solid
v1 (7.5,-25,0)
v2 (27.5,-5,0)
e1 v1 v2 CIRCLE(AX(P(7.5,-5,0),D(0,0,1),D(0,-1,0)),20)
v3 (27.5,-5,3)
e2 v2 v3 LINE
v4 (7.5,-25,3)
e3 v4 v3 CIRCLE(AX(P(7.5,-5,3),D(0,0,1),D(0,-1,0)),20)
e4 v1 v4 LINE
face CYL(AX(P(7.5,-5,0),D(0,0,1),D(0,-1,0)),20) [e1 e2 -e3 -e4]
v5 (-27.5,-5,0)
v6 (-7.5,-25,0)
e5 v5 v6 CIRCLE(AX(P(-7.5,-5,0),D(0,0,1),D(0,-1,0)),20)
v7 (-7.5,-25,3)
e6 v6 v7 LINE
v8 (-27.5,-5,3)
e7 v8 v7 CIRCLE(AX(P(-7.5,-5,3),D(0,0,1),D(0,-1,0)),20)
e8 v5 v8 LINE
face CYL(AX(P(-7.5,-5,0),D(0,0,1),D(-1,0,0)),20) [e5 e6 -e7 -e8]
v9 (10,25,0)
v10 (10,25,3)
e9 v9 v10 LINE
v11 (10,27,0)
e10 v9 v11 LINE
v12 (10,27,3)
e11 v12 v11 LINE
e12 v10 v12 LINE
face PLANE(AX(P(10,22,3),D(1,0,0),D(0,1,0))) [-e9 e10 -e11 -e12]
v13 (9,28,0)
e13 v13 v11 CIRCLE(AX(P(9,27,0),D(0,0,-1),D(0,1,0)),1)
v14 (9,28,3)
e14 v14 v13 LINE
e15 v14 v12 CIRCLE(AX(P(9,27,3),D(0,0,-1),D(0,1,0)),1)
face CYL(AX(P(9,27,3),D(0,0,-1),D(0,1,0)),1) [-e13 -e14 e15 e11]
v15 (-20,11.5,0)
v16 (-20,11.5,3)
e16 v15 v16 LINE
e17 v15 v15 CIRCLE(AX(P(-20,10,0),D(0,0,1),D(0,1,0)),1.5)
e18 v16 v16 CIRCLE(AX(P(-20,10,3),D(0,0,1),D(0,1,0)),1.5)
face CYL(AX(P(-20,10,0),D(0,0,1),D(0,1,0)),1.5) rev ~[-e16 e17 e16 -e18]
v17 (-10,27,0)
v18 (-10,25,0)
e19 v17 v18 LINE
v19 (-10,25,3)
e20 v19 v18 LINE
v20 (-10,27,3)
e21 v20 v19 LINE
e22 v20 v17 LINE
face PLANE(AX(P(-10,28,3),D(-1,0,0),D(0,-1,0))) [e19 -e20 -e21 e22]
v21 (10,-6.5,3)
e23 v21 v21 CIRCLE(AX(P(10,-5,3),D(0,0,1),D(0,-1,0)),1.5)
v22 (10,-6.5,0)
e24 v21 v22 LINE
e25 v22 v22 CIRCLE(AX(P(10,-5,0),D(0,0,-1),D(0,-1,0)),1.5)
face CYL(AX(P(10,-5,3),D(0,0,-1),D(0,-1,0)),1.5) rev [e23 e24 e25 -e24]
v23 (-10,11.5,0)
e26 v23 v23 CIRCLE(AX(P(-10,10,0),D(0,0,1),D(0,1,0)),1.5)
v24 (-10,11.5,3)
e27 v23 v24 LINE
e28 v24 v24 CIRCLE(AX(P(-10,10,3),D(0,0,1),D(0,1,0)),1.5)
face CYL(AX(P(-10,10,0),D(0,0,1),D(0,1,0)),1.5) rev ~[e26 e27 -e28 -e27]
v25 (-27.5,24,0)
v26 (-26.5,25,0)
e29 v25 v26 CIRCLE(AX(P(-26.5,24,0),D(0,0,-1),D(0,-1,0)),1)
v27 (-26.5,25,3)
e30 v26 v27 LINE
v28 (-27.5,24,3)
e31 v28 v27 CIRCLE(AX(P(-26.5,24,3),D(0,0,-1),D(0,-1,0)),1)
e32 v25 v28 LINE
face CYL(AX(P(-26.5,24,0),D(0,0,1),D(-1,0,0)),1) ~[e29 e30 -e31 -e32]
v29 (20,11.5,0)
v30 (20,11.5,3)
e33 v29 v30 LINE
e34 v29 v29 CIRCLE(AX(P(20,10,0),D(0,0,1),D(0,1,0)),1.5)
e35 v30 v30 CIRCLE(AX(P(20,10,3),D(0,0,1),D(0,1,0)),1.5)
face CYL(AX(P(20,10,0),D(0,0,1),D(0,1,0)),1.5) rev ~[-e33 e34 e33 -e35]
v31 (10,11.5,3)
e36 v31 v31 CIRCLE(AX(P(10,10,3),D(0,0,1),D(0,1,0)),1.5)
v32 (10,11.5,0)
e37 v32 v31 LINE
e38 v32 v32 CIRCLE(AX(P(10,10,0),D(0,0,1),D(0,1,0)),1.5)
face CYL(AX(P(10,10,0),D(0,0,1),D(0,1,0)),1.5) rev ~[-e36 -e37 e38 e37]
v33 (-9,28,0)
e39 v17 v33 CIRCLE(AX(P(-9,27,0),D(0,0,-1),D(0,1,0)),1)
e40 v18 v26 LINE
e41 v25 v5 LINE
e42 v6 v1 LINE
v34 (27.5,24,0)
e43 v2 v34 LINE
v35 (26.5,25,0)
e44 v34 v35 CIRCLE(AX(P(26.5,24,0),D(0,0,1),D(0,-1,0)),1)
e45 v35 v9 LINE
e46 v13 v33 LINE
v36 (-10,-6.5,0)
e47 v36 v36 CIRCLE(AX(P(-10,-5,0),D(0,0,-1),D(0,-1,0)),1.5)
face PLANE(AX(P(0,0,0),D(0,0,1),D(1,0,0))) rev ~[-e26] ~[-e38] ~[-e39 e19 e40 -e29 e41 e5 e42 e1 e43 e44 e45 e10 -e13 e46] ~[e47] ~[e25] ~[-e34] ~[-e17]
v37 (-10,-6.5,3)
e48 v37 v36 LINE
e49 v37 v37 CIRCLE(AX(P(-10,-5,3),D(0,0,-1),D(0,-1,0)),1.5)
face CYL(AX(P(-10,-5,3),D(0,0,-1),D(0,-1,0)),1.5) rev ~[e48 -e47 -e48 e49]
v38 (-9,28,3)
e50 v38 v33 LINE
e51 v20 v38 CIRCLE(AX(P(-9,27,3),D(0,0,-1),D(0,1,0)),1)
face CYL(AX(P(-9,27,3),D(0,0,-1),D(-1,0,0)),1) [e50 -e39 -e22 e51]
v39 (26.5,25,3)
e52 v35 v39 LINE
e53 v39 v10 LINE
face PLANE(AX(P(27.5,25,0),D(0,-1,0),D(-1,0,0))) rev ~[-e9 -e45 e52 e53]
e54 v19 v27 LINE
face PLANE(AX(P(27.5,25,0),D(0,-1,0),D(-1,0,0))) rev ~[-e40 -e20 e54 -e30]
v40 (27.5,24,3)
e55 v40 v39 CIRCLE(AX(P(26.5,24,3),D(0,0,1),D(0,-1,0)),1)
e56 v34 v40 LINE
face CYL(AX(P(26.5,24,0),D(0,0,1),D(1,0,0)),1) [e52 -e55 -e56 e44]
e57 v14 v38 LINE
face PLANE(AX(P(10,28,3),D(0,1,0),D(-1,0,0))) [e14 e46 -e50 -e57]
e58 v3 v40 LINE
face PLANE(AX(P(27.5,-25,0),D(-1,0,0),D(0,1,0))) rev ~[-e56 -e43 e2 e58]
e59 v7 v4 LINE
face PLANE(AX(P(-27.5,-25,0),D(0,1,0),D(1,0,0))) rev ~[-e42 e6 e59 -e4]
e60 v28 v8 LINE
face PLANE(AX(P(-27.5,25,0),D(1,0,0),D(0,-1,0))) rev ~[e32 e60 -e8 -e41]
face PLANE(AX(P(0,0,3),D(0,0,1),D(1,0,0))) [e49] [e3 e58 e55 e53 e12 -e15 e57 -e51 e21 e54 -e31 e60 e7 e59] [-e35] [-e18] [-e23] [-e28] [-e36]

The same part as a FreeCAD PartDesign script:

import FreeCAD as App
import Part
import Sketcher
from FreeCAD import Vector
Q = App.Units.Quantity


def edges_at(feature, points):
    """Names of the edges that pass closest to the given points."""
    edges = feature.Shape.Edges
    near = lambda p: min(range(len(edges)), key=lambda i: edges[i].distToShape(Part.Vertex(*p))[0])
    return sorted({f"Edge{near(p) + 1}" for p in points})

doc = App.newDocument("Part")
body = doc.addObject("PartDesign::Body", "Body")

sketch1 = body.newObject("Sketcher::SketchObject", "Sketch")
sketch1.AttachmentSupport = (doc.getObject("XY_Plane"), [""])
sketch1.MapMode = "FlatFace"
sketch1.addGeometry([
    Part.LineSegment(Vector(-28, 25, 0), Vector(-28, -25, 0)),
    Part.LineSegment(Vector(-28, -25, 0), Vector(28, -25, 0)),
    Part.LineSegment(Vector(28, -25, 0), Vector(28, 25, 0)),
    Part.LineSegment(Vector(28, 25, 0), Vector(-28, 25, 0)),
], False)
sketch1.addConstraint([
    Sketcher.Constraint("Coincident", 0, 2, 1, 1),
    Sketcher.Constraint("Coincident", 1, 2, 2, 1),
    Sketcher.Constraint("Coincident", 2, 2, 3, 1),
    Sketcher.Constraint("Coincident", 3, 2, 0, 1),
    Sketcher.Constraint("Vertical", 0),
    Sketcher.Constraint("Horizontal", 1),
    Sketcher.Constraint("Vertical", 2),
    Sketcher.Constraint("Horizontal", 3),
    Sketcher.Constraint("Symmetric", 0, 2, 2, 2, -1, 1),
    Sketcher.Constraint("DistanceX", 1, 1, 1, 2, Q("55 mm")),
    Sketcher.Constraint("DistanceY", 0, 2, 0, 1, Q("50 mm")),
])
pad1 = body.newObject("PartDesign::Pad", "Pad")
pad1.Profile = sketch1
pad1.Length = 3

sketch2 = body.newObject("Sketcher::SketchObject", "Sketch001")
sketch2.AttachmentSupport = (doc.getObject("XY_Plane"), [""])
sketch2.MapMode = "FlatFace"
sketch2.AttachmentOffset = App.Placement(Vector(0, 0, 3), App.Rotation())
sketch2.addGeometry([
    Part.LineSegment(Vector(-10, 28, 0), Vector(-10, 22, 0)),
    Part.LineSegment(Vector(-10, 22, 0), Vector(10, 22, 0)),
    Part.LineSegment(Vector(10, 22, 0), Vector(10, 28, 0)),
    Part.LineSegment(Vector(10, 28, 0), Vector(-10, 28, 0)),
], False)
sketch2.addConstraint([
    Sketcher.Constraint("Coincident", 0, 2, 1, 1),
    Sketcher.Constraint("Coincident", 1, 2, 2, 1),
    Sketcher.Constraint("Coincident", 2, 2, 3, 1),
    Sketcher.Constraint("Coincident", 3, 2, 0, 1),
    Sketcher.Constraint("Vertical", 0),
    Sketcher.Constraint("Horizontal", 1),
    Sketcher.Constraint("Vertical", 2),
    Sketcher.Constraint("Horizontal", 3),
    Sketcher.Constraint("DistanceX", 1, 1, 1, 2, Q("20 mm")),
    Sketcher.Constraint("DistanceY", 0, 2, 0, 1, Q("6 mm")),
    Sketcher.Constraint("DistanceX", 0, 2, -1, 1, Q("10 mm")),
    Sketcher.Constraint("DistanceY", -1, 1, 0, 2, Q("22 mm")),
])
pad2 = body.newObject("PartDesign::Pad", "Pad001")
pad2.Profile = sketch2
pad2.Length = 3
pad2.Reversed = True
doc.recompute()

fillet = body.newObject("PartDesign::Fillet", "Fillet")
fillet.Base = (pad2, edges_at(pad2, [
    (-27.5, 25, 1.5),
    (27.5, 25, 1.5),
    (10, 28, 1.5),
    (-10, 28, 1.5),
]))
fillet.Radius = 1

sketch3 = body.newObject("Sketcher::SketchObject", "Sketch002")
sketch3.AttachmentSupport = (doc.getObject("XY_Plane"), [""])
sketch3.MapMode = "FlatFace"
sketch3.addGeometry([
    Part.Circle(Vector(20, 10, 0), Vector(0, 0, 1), 1.5),
    Part.Circle(Vector(10, 10, 0), Vector(0, 0, 1), 1.5),
    Part.Circle(Vector(-10, 10, 0), Vector(0, 0, 1), 1.5),
    Part.Circle(Vector(-20, 10, 0), Vector(0, 0, 1), 1.5),
], False)
sketch3.addConstraint([
    Sketcher.Constraint("Equal", 0, 1),
    Sketcher.Constraint("Equal", 1, 2),
    Sketcher.Constraint("Equal", 2, 3),
    Sketcher.Constraint("Symmetric", 1, 3, 2, 3, -2),
    Sketcher.Constraint("Symmetric", 0, 3, 3, 3, -2),
    Sketcher.Constraint("Horizontal", 0, 3, 1, 3),
    Sketcher.Constraint("Diameter", 0, Q("3 mm")),
    Sketcher.Constraint("DistanceX", -1, 1, 0, 3, Q("20 mm")),
    Sketcher.Constraint("DistanceY", -1, 1, 0, 3, Q("10 mm")),
    Sketcher.Constraint("DistanceX", -1, 1, 1, 3, Q("10 mm")),
])
doc.recompute()
hole = body.newObject("PartDesign::Hole", "Hole")
hole.Profile = sketch3
hole.ThreadType = "None"
hole.Diameter = 3
hole.DepthType = "ThroughAll"
hole.Reversed = True

sketch4 = body.newObject("Sketcher::SketchObject", "Sketch003")
sketch4.AttachmentSupport = (doc.getObject("XY_Plane"), [""])
sketch4.MapMode = "FlatFace"
sketch4.AttachmentOffset = App.Placement(Vector(0, 0, 3), App.Rotation())
sketch4.addGeometry(Part.Circle(Vector(-10, -5, 0), Vector(0, 0, 1), 1.5), False)
sketch4.addConstraint([
    Sketcher.Constraint("Diameter", 0, Q("3 mm")),
    Sketcher.Constraint("DistanceX", 0, 3, -1, 1, Q("10 mm")),
    Sketcher.Constraint("DistanceY", 0, 3, -1, 1, Q("5 mm")),
])
doc.recompute()
hole2 = body.newObject("PartDesign::Hole", "Hole001")
hole2.Profile = sketch4
hole2.ThreadType = "None"
hole2.Diameter = 3
hole2.DepthType = "ThroughAll"
doc.recompute()

mirrored = body.newObject("PartDesign::Mirrored", "Mirrored")
mirrored.Originals = [hole2]
mirrored.MirrorPlane = (doc.getObject("YZ_Plane"), [""])
body.Tip = mirrored
doc.recompute()

fillet2 = body.newObject("PartDesign::Fillet", "Fillet001")
fillet2.Base = (mirrored, edges_at(mirrored, [(-27.5, -25, 1.5), (27.5, -25, 1.5)]))
fillet2.Radius = 20

doc.recompute()
